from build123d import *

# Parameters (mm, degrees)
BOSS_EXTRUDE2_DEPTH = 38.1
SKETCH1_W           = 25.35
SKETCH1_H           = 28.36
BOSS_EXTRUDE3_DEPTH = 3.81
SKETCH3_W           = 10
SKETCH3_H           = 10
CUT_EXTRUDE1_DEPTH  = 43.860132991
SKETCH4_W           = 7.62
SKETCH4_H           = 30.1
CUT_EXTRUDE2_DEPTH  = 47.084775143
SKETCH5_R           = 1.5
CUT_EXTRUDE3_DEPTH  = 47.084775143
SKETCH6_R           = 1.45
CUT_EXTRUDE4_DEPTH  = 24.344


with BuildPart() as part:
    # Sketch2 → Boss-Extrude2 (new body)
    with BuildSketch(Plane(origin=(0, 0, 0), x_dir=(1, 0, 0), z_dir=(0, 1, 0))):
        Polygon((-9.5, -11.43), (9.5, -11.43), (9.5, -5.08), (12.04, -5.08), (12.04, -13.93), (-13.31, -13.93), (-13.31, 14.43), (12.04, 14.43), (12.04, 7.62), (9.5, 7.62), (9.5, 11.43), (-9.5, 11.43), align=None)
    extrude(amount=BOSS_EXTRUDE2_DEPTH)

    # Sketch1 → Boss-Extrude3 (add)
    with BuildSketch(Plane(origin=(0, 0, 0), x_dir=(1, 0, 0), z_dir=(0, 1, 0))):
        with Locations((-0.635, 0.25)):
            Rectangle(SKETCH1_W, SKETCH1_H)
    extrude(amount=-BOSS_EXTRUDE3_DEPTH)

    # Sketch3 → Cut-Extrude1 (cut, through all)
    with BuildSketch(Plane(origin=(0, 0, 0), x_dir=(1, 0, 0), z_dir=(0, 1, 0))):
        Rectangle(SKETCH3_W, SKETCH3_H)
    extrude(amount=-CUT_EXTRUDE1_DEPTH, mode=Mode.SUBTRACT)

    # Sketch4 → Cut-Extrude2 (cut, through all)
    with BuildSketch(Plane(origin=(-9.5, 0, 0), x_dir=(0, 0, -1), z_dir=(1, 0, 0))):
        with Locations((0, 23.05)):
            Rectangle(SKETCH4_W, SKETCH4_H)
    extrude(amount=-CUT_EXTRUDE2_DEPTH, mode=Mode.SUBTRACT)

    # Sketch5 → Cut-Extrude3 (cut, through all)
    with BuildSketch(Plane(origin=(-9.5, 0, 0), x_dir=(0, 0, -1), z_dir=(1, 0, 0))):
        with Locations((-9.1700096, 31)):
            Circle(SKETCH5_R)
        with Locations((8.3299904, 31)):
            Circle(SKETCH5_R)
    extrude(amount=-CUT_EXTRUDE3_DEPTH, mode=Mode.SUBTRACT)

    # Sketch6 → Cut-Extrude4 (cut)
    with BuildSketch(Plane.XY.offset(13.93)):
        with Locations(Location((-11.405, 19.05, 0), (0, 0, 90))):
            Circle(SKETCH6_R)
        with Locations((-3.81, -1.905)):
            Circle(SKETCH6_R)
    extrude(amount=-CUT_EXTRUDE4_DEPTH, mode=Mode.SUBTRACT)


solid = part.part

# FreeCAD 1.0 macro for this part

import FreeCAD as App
import Part
import Sketcher

V = App.Vector
Q = App.Units.Quantity

doc = App.newDocument("Part")
body = doc.addObject("PartDesign::Body", "Body")

sketch1 = body.newObject("Sketcher::SketchObject", "Sketch")
sketch1.AttachmentSupport = (doc.getObject("XZ_Plane"), [""])
sketch1.MapMode = "FlatFace"
sketch1.addGeometry([
    Part.LineSegment(V(9.5, 11.4, 0), V(-9.5, 11.4, 0)),
    Part.LineSegment(V(-9.5, 11.4, 0), V(-9.5, -11.4, 0)),
    Part.LineSegment(V(-9.5, -11.4, 0), V(9.5, -11.4, 0)),
    Part.LineSegment(V(9.5, -11.4, 0), V(9.5, -7.6, 0)),
    Part.LineSegment(V(9.5, -7.6, 0), V(12, -7.6, 0)),
    Part.LineSegment(V(12, -7.6, 0), V(12, -14.4, 0)),
    Part.LineSegment(V(12, -14.4, 0), V(-13.3, -14.4, 0)),
    Part.LineSegment(V(-13.3, -14.4, 0), V(-13.3, 13.9, 0)),
    Part.LineSegment(V(-13.3, 13.9, 0), V(12, 13.9, 0)),
    Part.LineSegment(V(12, 13.9, 0), V(12, 5.1, 0)),
    Part.LineSegment(V(12, 5.1, 0), V(9.5, 5.1, 0)),
    Part.LineSegment(V(9.5, 5.1, 0), V(9.5, 11.4, 0)),
], False)
sketch1.addConstraint([
    Sketcher.Constraint("Coincident", 0, 2, 1, 1),
    Sketcher.Constraint("Coincident", 1, 2, 2, 1),
    Sketcher.Constraint("Coincident", 2, 2, 3, 1),
    Sketcher.Constraint("Coincident", 3, 2, 4, 1),
    Sketcher.Constraint("Coincident", 4, 2, 5, 1),
    Sketcher.Constraint("Coincident", 5, 2, 6, 1),
    Sketcher.Constraint("Coincident", 6, 2, 7, 1),
    Sketcher.Constraint("Coincident", 7, 2, 8, 1),
    Sketcher.Constraint("Coincident", 8, 2, 9, 1),
    Sketcher.Constraint("Coincident", 9, 2, 10, 1),
    Sketcher.Constraint("Coincident", 10, 2, 11, 1),
    Sketcher.Constraint("Coincident", 11, 2, 0, 1),
    Sketcher.Constraint("Horizontal", 0),
    Sketcher.Constraint("Vertical", 1),
    Sketcher.Constraint("Horizontal", 2),
    Sketcher.Constraint("Vertical", 3),
    Sketcher.Constraint("Horizontal", 4),
    Sketcher.Constraint("Vertical", 5),
    Sketcher.Constraint("Horizontal", 6),
    Sketcher.Constraint("Vertical", 7),
    Sketcher.Constraint("Horizontal", 8),
    Sketcher.Constraint("Vertical", 9),
    Sketcher.Constraint("Horizontal", 10),
    Sketcher.Constraint("Vertical", 11),
    Sketcher.Constraint("Symmetric", 0, 2, 2, 2, -1, 1),
    Sketcher.Constraint("Vertical", 5, 2, 8, 2),
    Sketcher.Constraint("Vertical", 3, 2, 10, 2),
    Sketcher.Constraint("DistanceX", 4, 1, 4, 2, Q("0.1 in")),
    Sketcher.Constraint("DistanceY", 1, 2, 1, 1, Q("0.9 in")),
    Sketcher.Constraint("DistanceY", 3, 1, 3, 2, Q("0.15 in")),
    Sketcher.Constraint("DistanceY", 11, 1, 11, 2, Q("0.25 in")),
    Sketcher.Constraint("DistanceX", 6, 2, 1, 2, Q("0.15 in")),
    Sketcher.Constraint("DistanceX", 0, 2, 0, 1, Q("19 mm")),
    Sketcher.Constraint("DistanceY", 5, 2, 5, 1, Q("6.81 mm")),
    Sketcher.Constraint("DistanceY", 7, 1, 7, 2, Q("28.36 mm")),
])
pad1 = body.newObject("PartDesign::Pad", "Pad")
pad1.Profile = sketch1
pad1.Length = Q("1.5 in")
pad1.Reversed = True

sketch2 = body.newObject("Sketcher::SketchObject", "Sketch001")
sketch2.AttachmentSupport = (doc.getObject("XZ_Plane"), [""])
sketch2.MapMode = "FlatFace"
sketch2.addGeometry([
    Part.LineSegment(V(-13, -14, 0), V(-13, 14, 0)),
    Part.LineSegment(V(-13, 14, 0), V(12, 14, 0)),
    Part.LineSegment(V(12, 14, 0), V(12, -14, 0)),
    Part.LineSegment(V(12, -14, 0), V(-13, -14, 0)),
], False)
sketch2.addConstraint([
    Sketcher.Constraint("Coincident", 0, 2, 1, 1),
    Sketcher.Constraint("Coincident", 1, 2, 2, 1),
    Sketcher.Constraint("Coincident", 2, 2, 3, 1),
    Sketcher.Constraint("Coincident", 3, 2, 0, 1),
    Sketcher.Constraint("Vertical", 0),
    Sketcher.Constraint("Horizontal", 1),
    Sketcher.Constraint("Vertical", 2),
    Sketcher.Constraint("Horizontal", 3),
    Sketcher.Constraint("DistanceX", 1, 1, 1, 2, Q("25.35 mm")),
    Sketcher.Constraint("DistanceY", 0, 1, 0, 2, Q("28.36 mm")),
    Sketcher.Constraint("DistanceX", 0, 2, -1, 1, Q("13.31 mm")),
    Sketcher.Constraint("DistanceY", -1, 1, 0, 2, Q("13.93 mm")),
])
pad2 = body.newObject("PartDesign::Pad", "Pad001")
pad2.Profile = sketch2
pad2.Length = Q("0.15 in")

sketch3 = body.newObject("Sketcher::SketchObject", "Sketch002")
sketch3.AttachmentSupport = (doc.getObject("XZ_Plane"), [""])
sketch3.MapMode = "FlatFace"
sketch3.addGeometry([
    Part.LineSegment(V(-5, -5, 0), V(-5, 5, 0)),
    Part.LineSegment(V(-5, 5, 0), V(5, 5, 0)),
    Part.LineSegment(V(5, 5, 0), V(5, -5, 0)),
    Part.LineSegment(V(5, -5, 0), V(-5, -5, 0)),
], False)
sketch3.addConstraint([
    Sketcher.Constraint("Coincident", 0, 2, 1, 1),
    Sketcher.Constraint("Coincident", 1, 2, 2, 1),
    Sketcher.Constraint("Coincident", 2, 2, 3, 1),
    Sketcher.Constraint("Coincident", 3, 2, 0, 1),
    Sketcher.Constraint("Vertical", 0),
    Sketcher.Constraint("Horizontal", 1),
    Sketcher.Constraint("Vertical", 2),
    Sketcher.Constraint("Horizontal", 3),
    Sketcher.Constraint("Symmetric", 0, 2, 2, 2, -1, 1),
    Sketcher.Constraint("Equal", 3, 0),
    Sketcher.Constraint("DistanceX", 1, 1, 1, 2, Q("10 mm")),
])
pocket1 = body.newObject("PartDesign::Pocket", "Pocket")
pocket1.Profile = sketch3
pocket1.Type = "ThroughAll"
pocket1.Reversed = True

sketch4 = body.newObject("Sketcher::SketchObject", "Sketch003")
sketch4.AttachmentSupport = (doc.getObject("YZ_Plane"), [""])
sketch4.MapMode = "FlatFace"
sketch4.AttachmentOffset = App.Placement(V(0, 0, -9.5), App.Rotation())
sketch4.addGeometry([
    Part.LineSegment(V(38, 4, 0), V(8, 4, 0)),
    Part.LineSegment(V(8, 4, 0), V(8, -4, 0)),
    Part.LineSegment(V(8, -4, 0), V(38, -4, 0)),
    Part.LineSegment(V(38, -4, 0), V(38, 4, 0)),
], False)
sketch4.addConstraint([
    Sketcher.Constraint("Coincident", 0, 2, 1, 1),
    Sketcher.Constraint("Coincident", 1, 2, 2, 1),
    Sketcher.Constraint("Coincident", 2, 2, 3, 1),
    Sketcher.Constraint("Coincident", 3, 2, 0, 1),
    Sketcher.Constraint("Horizontal", 0),
    Sketcher.Constraint("Vertical", 1),
    Sketcher.Constraint("Horizontal", 2),
    Sketcher.Constraint("Vertical", 3),
    Sketcher.Constraint("DistanceY", 1, 2, 1, 1, Q("0.3 in")),
    Sketcher.Constraint("DistanceX", -1, 1, 2, 2, Q("1.5 in")),
    Sketcher.Constraint("DistanceY", -1, 1, 0, 2, Q("0.15 in")),
    Sketcher.Constraint("DistanceX", 0, 2, 0, 1, Q("30.1 mm")),
])
pocket2 = body.newObject("PartDesign::Pocket", "Pocket001")
pocket2.Profile = sketch4
pocket2.Type = "ThroughAll"

sketch5 = body.newObject("Sketcher::SketchObject", "Sketch004")
sketch5.AttachmentSupport = (doc.getObject("YZ_Plane"), [""])
sketch5.MapMode = "FlatFace"
sketch5.AttachmentOffset = App.Placement(V(0, 0, -9.5), App.Rotation())
sketch5.addGeometry([
    Part.Circle(V(31, 9.2, 0), V(0, 0, 1), 1.5),
    Part.Circle(V(31, -8.3, 0), V(0, 0, 1), 1.5),
], False)
sketch5.addConstraint([
    Sketcher.Constraint("Equal", 0, 1),
    Sketcher.Constraint("Vertical", 0, 3, 1, 3),
    Sketcher.Constraint("Diameter", 0, Q("3 mm")),
    Sketcher.Constraint("DistanceX", -1, 1, 0, 3, Q("31 mm")),
    Sketcher.Constraint("DistanceY", 1, 3, 0, 3, Q("17.5 mm")),
    Sketcher.Constraint("DistanceY", -1, 1, 0, 3, Q("9.17001 mm")),
])
pocket3 = body.newObject("PartDesign::Pocket", "Pocket002")
pocket3.Profile = sketch5
pocket3.Type = "ThroughAll"

sketch6 = body.newObject("Sketcher::SketchObject", "Sketch005")
sketch6.AttachmentSupport = (doc.getObject("XY_Plane"), [""])
sketch6.MapMode = "FlatFace"
sketch6.AttachmentOffset = App.Placement(V(0, 0, 13.93), App.Rotation())
sketch6.addGeometry([
    Part.Circle(V(-11.4, 19.1, 0), V(0, 0, 1), 1.4),
    Part.Circle(V(-3.8, -1.9, 0), V(0, 0, 1), 1.4),
], False)
sketch6.addConstraint([
    Sketcher.Constraint("Equal", 0, 1),
    Sketcher.Constraint("Diameter", 0, Q("2.9 mm")),
    Sketcher.Constraint("DistanceY", -1, 1, 0, 3, Q("0.75 in")),
    Sketcher.Constraint("DistanceX", 1, 3, -1, 1, Q("0.15 in")),
    Sketcher.Constraint("DistanceY", 1, 3, -1, 1, Q("0.075 in")),
    Sketcher.Constraint("DistanceX", 0, 3, -1, 1, Q("11.405 mm")),
])
pocket4 = body.newObject("PartDesign::Pocket", "Pocket003")
pocket4.Profile = sketch6
pocket4.Length = 24.344

doc.recompute()
